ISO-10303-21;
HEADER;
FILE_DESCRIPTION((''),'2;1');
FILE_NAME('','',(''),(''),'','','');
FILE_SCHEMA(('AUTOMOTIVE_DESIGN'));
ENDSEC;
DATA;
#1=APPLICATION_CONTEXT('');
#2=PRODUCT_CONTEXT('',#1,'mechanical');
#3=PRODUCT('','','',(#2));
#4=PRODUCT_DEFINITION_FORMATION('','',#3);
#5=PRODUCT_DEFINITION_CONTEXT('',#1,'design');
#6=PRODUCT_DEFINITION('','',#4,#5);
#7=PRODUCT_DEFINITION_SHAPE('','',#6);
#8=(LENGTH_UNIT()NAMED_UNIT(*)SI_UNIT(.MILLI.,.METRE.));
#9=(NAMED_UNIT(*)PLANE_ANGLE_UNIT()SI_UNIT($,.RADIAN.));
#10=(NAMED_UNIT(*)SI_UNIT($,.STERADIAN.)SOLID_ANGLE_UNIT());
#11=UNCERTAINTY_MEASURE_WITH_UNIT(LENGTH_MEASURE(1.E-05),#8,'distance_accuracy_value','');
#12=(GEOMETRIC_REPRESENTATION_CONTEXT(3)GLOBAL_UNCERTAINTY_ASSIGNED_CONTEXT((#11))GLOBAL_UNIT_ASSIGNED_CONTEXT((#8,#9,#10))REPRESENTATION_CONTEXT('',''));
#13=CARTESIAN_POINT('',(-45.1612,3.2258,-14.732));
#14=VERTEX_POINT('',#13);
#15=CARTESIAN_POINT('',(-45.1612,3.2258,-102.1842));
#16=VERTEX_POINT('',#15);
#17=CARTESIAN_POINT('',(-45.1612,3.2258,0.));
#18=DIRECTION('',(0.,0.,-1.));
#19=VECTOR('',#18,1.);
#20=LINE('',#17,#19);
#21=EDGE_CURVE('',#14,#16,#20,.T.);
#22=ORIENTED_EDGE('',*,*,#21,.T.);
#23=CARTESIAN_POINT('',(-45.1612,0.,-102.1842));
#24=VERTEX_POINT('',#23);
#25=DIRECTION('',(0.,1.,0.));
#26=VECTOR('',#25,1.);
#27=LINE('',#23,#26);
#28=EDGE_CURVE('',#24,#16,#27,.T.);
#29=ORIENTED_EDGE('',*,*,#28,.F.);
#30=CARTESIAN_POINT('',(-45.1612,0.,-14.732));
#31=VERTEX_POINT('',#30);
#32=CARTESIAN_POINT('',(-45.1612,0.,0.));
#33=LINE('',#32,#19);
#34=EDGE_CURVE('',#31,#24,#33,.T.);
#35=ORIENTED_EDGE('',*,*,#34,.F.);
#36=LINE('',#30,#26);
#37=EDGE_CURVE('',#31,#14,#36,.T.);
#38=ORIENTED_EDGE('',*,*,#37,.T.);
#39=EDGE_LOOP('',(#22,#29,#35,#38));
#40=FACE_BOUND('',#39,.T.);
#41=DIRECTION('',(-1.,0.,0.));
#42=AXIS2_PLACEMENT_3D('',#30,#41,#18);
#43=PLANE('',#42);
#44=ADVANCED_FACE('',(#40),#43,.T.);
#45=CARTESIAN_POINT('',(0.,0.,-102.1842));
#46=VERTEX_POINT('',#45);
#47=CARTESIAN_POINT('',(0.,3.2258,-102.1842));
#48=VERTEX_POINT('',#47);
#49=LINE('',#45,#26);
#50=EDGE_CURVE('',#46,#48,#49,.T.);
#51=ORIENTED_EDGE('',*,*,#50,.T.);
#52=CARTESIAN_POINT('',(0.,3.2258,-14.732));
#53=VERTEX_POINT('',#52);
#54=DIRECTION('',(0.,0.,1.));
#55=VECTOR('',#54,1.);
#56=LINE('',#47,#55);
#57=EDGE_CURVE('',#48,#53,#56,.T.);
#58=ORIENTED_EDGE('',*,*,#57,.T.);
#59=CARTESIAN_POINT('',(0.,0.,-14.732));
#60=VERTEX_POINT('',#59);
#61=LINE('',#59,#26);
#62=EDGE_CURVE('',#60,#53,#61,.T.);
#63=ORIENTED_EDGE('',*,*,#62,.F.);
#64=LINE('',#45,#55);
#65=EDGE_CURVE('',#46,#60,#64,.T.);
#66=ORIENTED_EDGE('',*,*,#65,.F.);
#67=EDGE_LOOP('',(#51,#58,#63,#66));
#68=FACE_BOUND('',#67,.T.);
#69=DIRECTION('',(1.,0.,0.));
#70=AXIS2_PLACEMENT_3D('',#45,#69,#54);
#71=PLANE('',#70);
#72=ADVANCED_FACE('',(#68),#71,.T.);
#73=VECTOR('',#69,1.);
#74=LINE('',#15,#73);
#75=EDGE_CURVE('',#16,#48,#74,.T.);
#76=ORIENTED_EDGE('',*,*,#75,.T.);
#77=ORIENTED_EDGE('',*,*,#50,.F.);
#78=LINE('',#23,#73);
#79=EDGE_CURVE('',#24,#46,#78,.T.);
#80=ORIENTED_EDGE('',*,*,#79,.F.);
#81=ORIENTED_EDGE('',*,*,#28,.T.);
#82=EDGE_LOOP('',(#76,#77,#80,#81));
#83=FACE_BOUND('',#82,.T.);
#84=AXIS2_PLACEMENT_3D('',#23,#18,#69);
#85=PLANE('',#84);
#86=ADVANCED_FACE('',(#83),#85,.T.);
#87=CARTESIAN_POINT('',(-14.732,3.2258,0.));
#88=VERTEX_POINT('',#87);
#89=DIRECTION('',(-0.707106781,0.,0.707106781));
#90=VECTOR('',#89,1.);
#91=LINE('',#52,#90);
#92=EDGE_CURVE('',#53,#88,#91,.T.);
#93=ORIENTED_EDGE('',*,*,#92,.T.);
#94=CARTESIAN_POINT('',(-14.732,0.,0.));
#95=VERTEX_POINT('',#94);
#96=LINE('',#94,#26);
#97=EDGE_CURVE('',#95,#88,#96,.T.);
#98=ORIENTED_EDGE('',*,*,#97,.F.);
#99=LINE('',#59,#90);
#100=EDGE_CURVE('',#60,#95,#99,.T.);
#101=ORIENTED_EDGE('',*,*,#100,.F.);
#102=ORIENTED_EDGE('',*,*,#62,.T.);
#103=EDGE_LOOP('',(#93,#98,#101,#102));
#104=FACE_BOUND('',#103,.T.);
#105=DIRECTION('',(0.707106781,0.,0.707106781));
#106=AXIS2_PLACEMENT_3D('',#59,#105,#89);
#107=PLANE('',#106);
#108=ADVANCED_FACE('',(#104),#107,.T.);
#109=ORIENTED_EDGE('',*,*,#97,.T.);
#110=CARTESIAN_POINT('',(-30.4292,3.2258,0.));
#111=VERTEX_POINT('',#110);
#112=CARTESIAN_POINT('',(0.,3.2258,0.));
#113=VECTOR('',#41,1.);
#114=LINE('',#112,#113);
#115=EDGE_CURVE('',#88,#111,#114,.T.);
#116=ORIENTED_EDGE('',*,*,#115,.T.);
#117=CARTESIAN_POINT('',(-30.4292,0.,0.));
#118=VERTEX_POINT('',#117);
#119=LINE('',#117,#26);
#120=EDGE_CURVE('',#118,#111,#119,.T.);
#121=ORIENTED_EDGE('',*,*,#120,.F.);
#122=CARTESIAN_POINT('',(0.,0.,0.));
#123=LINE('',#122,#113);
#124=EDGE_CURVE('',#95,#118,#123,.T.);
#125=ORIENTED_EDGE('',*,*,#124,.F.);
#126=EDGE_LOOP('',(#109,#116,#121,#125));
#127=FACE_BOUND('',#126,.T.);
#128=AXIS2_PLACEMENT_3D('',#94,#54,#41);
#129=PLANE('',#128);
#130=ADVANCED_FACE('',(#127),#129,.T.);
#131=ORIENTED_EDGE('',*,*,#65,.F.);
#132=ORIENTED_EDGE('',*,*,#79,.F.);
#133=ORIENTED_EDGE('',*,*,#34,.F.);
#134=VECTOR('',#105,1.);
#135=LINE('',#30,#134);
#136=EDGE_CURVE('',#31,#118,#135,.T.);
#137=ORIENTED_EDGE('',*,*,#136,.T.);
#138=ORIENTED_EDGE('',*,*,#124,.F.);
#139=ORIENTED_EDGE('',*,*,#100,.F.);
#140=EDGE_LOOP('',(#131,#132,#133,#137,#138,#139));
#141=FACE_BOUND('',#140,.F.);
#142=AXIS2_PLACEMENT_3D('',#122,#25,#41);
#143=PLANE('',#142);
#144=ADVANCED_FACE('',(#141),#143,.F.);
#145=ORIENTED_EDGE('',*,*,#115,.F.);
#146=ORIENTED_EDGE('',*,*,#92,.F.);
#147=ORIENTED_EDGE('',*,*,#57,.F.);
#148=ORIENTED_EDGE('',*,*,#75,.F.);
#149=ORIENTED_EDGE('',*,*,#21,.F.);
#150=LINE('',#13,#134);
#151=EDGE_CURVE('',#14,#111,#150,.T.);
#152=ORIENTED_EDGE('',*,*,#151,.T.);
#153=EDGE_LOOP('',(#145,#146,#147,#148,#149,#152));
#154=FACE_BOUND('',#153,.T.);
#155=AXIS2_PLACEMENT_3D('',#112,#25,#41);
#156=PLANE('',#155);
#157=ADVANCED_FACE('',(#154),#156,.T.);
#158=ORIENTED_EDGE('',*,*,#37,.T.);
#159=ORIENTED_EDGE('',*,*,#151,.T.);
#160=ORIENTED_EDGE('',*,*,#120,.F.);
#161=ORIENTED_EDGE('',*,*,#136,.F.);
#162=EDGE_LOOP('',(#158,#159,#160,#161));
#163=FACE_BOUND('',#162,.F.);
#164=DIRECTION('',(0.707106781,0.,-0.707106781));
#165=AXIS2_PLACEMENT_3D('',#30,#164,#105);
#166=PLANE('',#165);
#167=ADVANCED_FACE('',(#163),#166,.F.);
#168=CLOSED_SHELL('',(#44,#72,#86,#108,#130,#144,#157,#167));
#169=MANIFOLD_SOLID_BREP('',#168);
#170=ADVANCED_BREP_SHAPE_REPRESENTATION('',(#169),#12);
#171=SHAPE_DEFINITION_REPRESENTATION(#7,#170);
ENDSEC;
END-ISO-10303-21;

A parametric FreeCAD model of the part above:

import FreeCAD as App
import Part
import Sketcher
Q = App.Units.Quantity


def add_polygon(sketch, points):
    """Adds a closed chain of lines whose ends are joined by coincident constraints."""
    first, n = sketch.GeometryCount, len(points)
    for a, b in zip(points, points[1:] + points[:1]):
        sketch.addGeometry(Part.LineSegment(App.Vector(*a, 0), App.Vector(*b, 0)), False)
    for i in range(n):
        sketch.addConstraint(Sketcher.Constraint("Coincident", first + i, 2, first + (i + 1) % n, 1))

doc = App.newDocument("Part")
body = doc.addObject("PartDesign::Body", "Body")

# Sketch on XZ plane
sketch1 = body.newObject("Sketcher::SketchObject", "Sketch")
sketch1.AttachmentSupport = (doc.getObject("XZ_Plane"), [""])
sketch1.MapMode = "FlatFace"
add_polygon(sketch1, [(-30, 0), (-15, 0), (0, -15), (0, -102), (-45, -102), (-45, -15)])  # lines 0-5
sketch1.addConstraint([
    Sketcher.Constraint("Horizontal", 0),
    Sketcher.Constraint("Vertical", 2),
    Sketcher.Constraint("Horizontal", 3),
    Sketcher.Constraint("Vertical", 4),
    Sketcher.Constraint("PointOnObject", 0, 2, -1),
    Sketcher.Constraint("PointOnObject", 1, 2, -2),
    Sketcher.Constraint("Perpendicular", 1, 5),
    Sketcher.Constraint("Horizontal", 1, 2, 4, 2),
    Sketcher.Constraint("Equal", 1, 5),
    Sketcher.Constraint("DistanceX", 3, 2, 3, 1, Q("1.778 in")),
    Sketcher.Constraint("DistanceX", 0, 2, -1, 1, Q("0.58 in")),
    Sketcher.Constraint("DistanceY", 2, 2, -1, 1, Q("4.023 in")),
])
pad1 = body.newObject("PartDesign::Pad", "Pad")
pad1.Profile = sketch1
pad1.Length = Q("0.127 in")
pad1.Reversed = True

doc.recompute()
